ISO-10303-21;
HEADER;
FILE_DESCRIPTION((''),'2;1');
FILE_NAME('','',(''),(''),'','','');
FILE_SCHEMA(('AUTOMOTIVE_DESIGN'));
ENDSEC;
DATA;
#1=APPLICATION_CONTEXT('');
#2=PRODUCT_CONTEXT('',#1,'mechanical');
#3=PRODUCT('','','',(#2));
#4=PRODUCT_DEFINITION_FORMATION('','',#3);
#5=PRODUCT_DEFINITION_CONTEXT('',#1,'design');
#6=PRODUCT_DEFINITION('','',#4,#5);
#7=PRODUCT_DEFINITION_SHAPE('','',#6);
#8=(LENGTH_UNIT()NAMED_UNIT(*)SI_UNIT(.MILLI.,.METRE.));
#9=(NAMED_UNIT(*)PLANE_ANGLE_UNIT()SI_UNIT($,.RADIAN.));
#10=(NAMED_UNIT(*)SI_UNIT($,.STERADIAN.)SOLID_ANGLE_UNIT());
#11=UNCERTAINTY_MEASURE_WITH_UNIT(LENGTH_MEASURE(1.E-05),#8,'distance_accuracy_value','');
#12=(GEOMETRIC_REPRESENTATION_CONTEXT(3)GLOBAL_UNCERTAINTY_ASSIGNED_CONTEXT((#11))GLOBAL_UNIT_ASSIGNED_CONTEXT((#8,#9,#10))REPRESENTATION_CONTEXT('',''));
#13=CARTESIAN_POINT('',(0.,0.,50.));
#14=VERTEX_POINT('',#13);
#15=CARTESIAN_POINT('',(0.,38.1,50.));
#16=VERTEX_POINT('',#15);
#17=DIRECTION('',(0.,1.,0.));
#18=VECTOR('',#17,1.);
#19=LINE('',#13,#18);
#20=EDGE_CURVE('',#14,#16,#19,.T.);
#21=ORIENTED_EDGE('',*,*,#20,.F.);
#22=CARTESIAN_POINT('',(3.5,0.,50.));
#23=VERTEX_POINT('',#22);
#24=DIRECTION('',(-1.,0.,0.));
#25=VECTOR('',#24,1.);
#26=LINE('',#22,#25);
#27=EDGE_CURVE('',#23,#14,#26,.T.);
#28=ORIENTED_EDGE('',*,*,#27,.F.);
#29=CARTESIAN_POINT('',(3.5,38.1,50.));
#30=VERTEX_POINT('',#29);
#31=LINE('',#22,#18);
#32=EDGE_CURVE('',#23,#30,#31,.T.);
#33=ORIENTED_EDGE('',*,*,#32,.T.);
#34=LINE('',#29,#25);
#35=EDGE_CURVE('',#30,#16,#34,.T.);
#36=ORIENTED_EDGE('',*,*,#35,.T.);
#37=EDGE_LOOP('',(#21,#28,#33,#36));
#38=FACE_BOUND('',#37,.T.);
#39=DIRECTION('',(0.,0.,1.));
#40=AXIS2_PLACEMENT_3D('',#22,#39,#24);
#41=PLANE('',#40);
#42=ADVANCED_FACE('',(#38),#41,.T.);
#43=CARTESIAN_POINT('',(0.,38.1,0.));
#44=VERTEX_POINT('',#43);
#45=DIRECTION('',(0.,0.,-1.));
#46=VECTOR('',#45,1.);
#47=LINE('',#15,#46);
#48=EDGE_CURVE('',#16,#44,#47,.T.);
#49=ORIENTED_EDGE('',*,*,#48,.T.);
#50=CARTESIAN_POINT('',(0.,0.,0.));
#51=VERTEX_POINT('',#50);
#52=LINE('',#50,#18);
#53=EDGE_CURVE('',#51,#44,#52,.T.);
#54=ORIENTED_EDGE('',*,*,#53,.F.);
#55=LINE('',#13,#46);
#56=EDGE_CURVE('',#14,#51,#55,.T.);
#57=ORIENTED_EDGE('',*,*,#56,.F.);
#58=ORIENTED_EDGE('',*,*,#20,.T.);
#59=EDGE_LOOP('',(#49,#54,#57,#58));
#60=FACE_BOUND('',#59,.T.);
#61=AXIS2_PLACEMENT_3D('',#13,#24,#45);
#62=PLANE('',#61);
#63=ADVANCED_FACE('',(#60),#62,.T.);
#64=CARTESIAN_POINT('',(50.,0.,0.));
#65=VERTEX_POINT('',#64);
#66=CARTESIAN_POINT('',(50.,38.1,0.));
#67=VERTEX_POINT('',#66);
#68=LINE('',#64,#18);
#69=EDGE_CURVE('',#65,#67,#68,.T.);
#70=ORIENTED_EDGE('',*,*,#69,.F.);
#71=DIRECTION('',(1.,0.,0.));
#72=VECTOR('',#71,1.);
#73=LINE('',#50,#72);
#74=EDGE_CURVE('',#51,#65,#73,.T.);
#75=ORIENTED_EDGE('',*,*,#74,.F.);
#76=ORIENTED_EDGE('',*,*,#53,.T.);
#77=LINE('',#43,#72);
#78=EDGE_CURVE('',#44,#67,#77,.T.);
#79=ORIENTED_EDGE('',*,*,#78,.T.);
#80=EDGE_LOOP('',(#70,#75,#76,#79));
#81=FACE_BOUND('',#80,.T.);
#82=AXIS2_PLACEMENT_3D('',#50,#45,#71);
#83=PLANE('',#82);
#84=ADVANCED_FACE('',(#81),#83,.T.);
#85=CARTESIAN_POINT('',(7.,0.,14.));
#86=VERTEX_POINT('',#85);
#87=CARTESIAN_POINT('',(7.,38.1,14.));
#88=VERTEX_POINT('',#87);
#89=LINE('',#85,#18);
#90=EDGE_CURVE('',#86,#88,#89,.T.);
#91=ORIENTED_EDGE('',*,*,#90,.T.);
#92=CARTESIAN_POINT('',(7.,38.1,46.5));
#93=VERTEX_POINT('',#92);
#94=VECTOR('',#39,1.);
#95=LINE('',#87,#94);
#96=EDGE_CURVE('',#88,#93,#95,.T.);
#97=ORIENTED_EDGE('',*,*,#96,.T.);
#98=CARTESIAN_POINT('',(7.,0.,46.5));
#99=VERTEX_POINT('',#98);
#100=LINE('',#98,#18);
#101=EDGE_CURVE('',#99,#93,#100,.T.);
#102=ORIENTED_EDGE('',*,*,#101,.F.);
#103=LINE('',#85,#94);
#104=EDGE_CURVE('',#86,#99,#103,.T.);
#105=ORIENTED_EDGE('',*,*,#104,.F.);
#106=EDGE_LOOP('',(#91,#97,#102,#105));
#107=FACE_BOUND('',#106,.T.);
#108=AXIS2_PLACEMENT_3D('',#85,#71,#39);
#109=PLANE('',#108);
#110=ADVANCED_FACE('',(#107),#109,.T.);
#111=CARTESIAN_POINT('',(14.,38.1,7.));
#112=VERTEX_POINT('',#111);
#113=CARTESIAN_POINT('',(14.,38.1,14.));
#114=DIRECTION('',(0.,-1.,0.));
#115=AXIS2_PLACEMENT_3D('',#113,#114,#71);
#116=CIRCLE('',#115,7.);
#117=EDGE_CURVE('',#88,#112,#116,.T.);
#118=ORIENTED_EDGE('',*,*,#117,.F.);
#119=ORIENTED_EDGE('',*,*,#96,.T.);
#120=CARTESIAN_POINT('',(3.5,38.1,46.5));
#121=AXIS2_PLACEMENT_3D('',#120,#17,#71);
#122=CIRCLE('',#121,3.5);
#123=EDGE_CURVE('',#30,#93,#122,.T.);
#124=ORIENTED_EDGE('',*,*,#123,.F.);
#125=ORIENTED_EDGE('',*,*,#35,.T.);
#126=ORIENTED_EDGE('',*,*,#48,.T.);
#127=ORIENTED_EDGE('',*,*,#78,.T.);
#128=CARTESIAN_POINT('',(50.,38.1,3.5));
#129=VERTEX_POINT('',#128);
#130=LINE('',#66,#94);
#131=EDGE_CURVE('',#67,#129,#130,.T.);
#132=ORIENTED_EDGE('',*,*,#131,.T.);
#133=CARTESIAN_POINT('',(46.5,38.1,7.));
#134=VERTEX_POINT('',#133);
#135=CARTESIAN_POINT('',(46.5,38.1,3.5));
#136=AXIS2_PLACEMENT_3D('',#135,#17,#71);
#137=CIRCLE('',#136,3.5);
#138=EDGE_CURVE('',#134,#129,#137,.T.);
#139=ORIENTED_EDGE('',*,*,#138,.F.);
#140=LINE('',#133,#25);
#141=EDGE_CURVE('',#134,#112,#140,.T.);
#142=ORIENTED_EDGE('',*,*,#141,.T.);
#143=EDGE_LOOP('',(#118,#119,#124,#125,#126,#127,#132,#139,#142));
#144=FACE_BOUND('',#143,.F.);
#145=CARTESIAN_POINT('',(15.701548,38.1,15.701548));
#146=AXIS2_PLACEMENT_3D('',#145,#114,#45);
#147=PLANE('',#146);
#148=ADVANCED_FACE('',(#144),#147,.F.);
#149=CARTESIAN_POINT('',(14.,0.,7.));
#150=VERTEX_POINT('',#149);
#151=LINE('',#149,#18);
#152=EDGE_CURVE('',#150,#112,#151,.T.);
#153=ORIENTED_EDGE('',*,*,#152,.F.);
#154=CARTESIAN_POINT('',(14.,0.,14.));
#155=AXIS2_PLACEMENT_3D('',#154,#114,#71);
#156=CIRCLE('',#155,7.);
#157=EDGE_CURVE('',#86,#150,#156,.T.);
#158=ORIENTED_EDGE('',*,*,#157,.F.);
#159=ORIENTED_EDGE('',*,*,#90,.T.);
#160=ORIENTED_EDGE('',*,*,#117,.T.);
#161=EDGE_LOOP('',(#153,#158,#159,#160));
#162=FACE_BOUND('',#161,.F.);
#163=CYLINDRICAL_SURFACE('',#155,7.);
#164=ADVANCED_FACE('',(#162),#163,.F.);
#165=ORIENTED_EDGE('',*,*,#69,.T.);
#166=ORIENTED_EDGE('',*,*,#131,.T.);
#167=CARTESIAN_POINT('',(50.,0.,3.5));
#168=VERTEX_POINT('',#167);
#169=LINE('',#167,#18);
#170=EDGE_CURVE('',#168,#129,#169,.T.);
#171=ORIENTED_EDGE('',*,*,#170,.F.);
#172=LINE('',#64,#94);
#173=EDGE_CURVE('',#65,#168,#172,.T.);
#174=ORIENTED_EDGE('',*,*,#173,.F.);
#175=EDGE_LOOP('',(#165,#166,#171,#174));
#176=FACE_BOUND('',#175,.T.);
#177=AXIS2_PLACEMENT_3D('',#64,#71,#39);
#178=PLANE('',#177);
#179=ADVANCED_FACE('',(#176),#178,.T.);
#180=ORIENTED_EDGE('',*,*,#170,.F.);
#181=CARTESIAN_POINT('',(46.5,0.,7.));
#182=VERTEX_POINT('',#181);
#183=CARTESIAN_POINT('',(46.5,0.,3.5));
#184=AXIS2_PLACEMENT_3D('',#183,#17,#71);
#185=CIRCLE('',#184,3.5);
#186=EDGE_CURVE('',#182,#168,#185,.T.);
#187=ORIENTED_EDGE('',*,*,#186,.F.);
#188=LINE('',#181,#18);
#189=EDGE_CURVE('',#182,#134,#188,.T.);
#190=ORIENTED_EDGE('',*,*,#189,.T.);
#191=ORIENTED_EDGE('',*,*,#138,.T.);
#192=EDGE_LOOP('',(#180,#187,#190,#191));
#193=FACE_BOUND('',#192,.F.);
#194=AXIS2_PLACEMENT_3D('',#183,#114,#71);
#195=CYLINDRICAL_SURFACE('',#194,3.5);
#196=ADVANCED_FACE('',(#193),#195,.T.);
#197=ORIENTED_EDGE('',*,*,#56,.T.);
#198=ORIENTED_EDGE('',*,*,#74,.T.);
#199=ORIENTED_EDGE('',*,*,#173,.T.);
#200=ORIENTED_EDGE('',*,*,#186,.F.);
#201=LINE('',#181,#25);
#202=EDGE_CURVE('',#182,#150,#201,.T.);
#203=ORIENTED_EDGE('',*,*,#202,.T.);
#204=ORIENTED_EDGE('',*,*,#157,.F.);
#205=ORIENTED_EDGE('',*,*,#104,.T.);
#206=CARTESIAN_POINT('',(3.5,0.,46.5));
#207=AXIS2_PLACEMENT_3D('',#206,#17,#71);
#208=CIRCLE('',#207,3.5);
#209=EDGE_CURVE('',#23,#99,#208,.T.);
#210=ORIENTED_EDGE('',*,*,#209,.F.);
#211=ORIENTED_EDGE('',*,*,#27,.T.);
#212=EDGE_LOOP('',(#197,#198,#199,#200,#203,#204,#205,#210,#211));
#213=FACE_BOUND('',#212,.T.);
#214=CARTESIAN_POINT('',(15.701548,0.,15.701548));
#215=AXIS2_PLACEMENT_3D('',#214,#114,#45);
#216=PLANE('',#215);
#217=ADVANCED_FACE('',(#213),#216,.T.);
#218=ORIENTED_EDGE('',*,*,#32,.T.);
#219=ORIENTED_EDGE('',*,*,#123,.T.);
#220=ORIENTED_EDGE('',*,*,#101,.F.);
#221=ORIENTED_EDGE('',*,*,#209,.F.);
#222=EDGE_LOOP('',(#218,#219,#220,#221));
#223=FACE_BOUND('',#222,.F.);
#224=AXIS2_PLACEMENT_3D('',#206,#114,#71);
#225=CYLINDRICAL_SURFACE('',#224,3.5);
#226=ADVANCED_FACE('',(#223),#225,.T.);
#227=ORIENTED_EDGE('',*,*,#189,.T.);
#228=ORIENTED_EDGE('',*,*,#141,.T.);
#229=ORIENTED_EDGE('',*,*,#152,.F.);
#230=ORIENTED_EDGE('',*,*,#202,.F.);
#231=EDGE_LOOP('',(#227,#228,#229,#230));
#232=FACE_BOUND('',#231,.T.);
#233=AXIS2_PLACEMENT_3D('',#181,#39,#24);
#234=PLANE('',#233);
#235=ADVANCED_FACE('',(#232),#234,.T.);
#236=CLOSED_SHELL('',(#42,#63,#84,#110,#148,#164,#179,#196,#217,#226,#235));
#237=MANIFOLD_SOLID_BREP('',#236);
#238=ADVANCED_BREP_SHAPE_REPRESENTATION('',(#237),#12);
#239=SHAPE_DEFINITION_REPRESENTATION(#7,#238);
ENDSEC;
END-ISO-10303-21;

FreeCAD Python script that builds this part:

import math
import FreeCAD as App
import Part
import Sketcher
Q = App.Units.Quantity

doc = App.newDocument("Part")
params = doc.addObject("Spreadsheet::Sheet", "Params")
for row, (alias, value) in enumerate([
    ("sketch1_radius", "7 mm"),
    ("sketch1_radius2", "3.5 mm"),
    ("sketch1_width", "50 mm"),
    ("sketch1_width2", "32.5 mm"),
    ("pad1_length", "38.1 mm"),
], start=1):
    params.set(f"A{row}", alias)
    params.set(f"B{row}", "=" + value)
    params.setAlias(f"B{row}", alias)

body = doc.addObject("PartDesign::Body", "Body")

# Sketch on XZ plane
sketch1 = body.newObject("Sketcher::SketchObject", "Sketch")
sketch1.AttachmentSupport = (doc.getObject("XZ_Plane"), [""])
sketch1.MapMode = "FlatFace"
sketch1.addGeometry(Part.LineSegment(App.Vector(0, 0, 0), App.Vector(50, 0, 0)), False)
sketch1.addGeometry(Part.LineSegment(App.Vector(50, 0, 0), App.Vector(50, 3.5, 0)), False)
sketch1.addGeometry(Part.ArcOfCircle(Part.Circle(App.Vector(46.5, 3.5, 0), App.Vector(0, 0, 1), 3.5), math.radians(0), math.radians(90)), False)
sketch1.addGeometry(Part.LineSegment(App.Vector(46.5, 7, 0), App.Vector(14, 7, 0)), False)
sketch1.addGeometry(Part.ArcOfCircle(Part.Circle(App.Vector(14, 14, 0), App.Vector(0, 0, 1), 7), math.radians(180), math.radians(270)), False)
sketch1.addGeometry(Part.LineSegment(App.Vector(7, 14, 0), App.Vector(7, 46.5, 0)), False)
sketch1.addGeometry(Part.ArcOfCircle(Part.Circle(App.Vector(3.5, 46.5, 0), App.Vector(0, 0, 1), 3.5), math.radians(0), math.radians(90)), False)
sketch1.addGeometry(Part.LineSegment(App.Vector(3.5, 50, 0), App.Vector(0, 50, 0)), False)
sketch1.addGeometry(Part.LineSegment(App.Vector(0, 50, 0), App.Vector(0, 0, 0)), False)
sketch1.addConstraint(Sketcher.Constraint("Coincident", 0, 2, 1, 1))
sketch1.addConstraint(Sketcher.Constraint("Tangent", 1, 2, 2, 1))
sketch1.addConstraint(Sketcher.Constraint("Tangent", 2, 2, 3, 1))
sketch1.addConstraint(Sketcher.Constraint("Tangent", 3, 2, 4, 2))
sketch1.addConstraint(Sketcher.Constraint("Tangent", 4, 1, 5, 1))
sketch1.addConstraint(Sketcher.Constraint("Tangent", 5, 2, 6, 1))
sketch1.addConstraint(Sketcher.Constraint("Tangent", 6, 2, 7, 1))
sketch1.addConstraint(Sketcher.Constraint("Coincident", 7, 2, 8, 1))
sketch1.addConstraint(Sketcher.Constraint("Coincident", 8, 2, 0, 1))
sketch1.addConstraint(Sketcher.Constraint("Horizontal", 0))
sketch1.addConstraint(Sketcher.Constraint("Vertical", 1))
sketch1.addConstraint(Sketcher.Constraint("Horizontal", 3))
sketch1.addConstraint(Sketcher.Constraint("Vertical", 5))
sketch1.addConstraint(Sketcher.Constraint("Horizontal", 7))
sketch1.addConstraint(Sketcher.Constraint("Vertical", 8))
sketch1.addConstraint(Sketcher.Constraint("Coincident", 8, 2, -1, 1))
sketch1.addConstraint(Sketcher.Constraint("Equal", 2, 6))
sketch1.addConstraint(Sketcher.Constraint("Equal", 7, 1))
sketch1.addConstraint(Sketcher.Constraint("Equal", 3, 5))
sketch1.addConstraint(Sketcher.Constraint("Radius", 4, Q("7 mm")))
sketch1.addConstraint(Sketcher.Constraint("Radius", 2, Q("3.5 mm")))
sketch1.addConstraint(Sketcher.Constraint("DistanceX", 0, 1, 0, 2, Q("50 mm")))
sketch1.addConstraint(Sketcher.Constraint("DistanceX", 3, 2, 3, 1, Q("32.5 mm")))
sketch1.setExpression("Constraints[19]", "Params.sketch1_radius")
sketch1.setExpression("Constraints[20]", "Params.sketch1_radius2")
sketch1.setExpression("Constraints[21]", "Params.sketch1_width")
sketch1.setExpression("Constraints[22]", "Params.sketch1_width2")
pad1 = body.newObject("PartDesign::Pad", "Pad")
pad1.Profile = sketch1
pad1.setExpression("Length", "Params.pad1_length")
pad1.Reversed = True

doc.recompute()
